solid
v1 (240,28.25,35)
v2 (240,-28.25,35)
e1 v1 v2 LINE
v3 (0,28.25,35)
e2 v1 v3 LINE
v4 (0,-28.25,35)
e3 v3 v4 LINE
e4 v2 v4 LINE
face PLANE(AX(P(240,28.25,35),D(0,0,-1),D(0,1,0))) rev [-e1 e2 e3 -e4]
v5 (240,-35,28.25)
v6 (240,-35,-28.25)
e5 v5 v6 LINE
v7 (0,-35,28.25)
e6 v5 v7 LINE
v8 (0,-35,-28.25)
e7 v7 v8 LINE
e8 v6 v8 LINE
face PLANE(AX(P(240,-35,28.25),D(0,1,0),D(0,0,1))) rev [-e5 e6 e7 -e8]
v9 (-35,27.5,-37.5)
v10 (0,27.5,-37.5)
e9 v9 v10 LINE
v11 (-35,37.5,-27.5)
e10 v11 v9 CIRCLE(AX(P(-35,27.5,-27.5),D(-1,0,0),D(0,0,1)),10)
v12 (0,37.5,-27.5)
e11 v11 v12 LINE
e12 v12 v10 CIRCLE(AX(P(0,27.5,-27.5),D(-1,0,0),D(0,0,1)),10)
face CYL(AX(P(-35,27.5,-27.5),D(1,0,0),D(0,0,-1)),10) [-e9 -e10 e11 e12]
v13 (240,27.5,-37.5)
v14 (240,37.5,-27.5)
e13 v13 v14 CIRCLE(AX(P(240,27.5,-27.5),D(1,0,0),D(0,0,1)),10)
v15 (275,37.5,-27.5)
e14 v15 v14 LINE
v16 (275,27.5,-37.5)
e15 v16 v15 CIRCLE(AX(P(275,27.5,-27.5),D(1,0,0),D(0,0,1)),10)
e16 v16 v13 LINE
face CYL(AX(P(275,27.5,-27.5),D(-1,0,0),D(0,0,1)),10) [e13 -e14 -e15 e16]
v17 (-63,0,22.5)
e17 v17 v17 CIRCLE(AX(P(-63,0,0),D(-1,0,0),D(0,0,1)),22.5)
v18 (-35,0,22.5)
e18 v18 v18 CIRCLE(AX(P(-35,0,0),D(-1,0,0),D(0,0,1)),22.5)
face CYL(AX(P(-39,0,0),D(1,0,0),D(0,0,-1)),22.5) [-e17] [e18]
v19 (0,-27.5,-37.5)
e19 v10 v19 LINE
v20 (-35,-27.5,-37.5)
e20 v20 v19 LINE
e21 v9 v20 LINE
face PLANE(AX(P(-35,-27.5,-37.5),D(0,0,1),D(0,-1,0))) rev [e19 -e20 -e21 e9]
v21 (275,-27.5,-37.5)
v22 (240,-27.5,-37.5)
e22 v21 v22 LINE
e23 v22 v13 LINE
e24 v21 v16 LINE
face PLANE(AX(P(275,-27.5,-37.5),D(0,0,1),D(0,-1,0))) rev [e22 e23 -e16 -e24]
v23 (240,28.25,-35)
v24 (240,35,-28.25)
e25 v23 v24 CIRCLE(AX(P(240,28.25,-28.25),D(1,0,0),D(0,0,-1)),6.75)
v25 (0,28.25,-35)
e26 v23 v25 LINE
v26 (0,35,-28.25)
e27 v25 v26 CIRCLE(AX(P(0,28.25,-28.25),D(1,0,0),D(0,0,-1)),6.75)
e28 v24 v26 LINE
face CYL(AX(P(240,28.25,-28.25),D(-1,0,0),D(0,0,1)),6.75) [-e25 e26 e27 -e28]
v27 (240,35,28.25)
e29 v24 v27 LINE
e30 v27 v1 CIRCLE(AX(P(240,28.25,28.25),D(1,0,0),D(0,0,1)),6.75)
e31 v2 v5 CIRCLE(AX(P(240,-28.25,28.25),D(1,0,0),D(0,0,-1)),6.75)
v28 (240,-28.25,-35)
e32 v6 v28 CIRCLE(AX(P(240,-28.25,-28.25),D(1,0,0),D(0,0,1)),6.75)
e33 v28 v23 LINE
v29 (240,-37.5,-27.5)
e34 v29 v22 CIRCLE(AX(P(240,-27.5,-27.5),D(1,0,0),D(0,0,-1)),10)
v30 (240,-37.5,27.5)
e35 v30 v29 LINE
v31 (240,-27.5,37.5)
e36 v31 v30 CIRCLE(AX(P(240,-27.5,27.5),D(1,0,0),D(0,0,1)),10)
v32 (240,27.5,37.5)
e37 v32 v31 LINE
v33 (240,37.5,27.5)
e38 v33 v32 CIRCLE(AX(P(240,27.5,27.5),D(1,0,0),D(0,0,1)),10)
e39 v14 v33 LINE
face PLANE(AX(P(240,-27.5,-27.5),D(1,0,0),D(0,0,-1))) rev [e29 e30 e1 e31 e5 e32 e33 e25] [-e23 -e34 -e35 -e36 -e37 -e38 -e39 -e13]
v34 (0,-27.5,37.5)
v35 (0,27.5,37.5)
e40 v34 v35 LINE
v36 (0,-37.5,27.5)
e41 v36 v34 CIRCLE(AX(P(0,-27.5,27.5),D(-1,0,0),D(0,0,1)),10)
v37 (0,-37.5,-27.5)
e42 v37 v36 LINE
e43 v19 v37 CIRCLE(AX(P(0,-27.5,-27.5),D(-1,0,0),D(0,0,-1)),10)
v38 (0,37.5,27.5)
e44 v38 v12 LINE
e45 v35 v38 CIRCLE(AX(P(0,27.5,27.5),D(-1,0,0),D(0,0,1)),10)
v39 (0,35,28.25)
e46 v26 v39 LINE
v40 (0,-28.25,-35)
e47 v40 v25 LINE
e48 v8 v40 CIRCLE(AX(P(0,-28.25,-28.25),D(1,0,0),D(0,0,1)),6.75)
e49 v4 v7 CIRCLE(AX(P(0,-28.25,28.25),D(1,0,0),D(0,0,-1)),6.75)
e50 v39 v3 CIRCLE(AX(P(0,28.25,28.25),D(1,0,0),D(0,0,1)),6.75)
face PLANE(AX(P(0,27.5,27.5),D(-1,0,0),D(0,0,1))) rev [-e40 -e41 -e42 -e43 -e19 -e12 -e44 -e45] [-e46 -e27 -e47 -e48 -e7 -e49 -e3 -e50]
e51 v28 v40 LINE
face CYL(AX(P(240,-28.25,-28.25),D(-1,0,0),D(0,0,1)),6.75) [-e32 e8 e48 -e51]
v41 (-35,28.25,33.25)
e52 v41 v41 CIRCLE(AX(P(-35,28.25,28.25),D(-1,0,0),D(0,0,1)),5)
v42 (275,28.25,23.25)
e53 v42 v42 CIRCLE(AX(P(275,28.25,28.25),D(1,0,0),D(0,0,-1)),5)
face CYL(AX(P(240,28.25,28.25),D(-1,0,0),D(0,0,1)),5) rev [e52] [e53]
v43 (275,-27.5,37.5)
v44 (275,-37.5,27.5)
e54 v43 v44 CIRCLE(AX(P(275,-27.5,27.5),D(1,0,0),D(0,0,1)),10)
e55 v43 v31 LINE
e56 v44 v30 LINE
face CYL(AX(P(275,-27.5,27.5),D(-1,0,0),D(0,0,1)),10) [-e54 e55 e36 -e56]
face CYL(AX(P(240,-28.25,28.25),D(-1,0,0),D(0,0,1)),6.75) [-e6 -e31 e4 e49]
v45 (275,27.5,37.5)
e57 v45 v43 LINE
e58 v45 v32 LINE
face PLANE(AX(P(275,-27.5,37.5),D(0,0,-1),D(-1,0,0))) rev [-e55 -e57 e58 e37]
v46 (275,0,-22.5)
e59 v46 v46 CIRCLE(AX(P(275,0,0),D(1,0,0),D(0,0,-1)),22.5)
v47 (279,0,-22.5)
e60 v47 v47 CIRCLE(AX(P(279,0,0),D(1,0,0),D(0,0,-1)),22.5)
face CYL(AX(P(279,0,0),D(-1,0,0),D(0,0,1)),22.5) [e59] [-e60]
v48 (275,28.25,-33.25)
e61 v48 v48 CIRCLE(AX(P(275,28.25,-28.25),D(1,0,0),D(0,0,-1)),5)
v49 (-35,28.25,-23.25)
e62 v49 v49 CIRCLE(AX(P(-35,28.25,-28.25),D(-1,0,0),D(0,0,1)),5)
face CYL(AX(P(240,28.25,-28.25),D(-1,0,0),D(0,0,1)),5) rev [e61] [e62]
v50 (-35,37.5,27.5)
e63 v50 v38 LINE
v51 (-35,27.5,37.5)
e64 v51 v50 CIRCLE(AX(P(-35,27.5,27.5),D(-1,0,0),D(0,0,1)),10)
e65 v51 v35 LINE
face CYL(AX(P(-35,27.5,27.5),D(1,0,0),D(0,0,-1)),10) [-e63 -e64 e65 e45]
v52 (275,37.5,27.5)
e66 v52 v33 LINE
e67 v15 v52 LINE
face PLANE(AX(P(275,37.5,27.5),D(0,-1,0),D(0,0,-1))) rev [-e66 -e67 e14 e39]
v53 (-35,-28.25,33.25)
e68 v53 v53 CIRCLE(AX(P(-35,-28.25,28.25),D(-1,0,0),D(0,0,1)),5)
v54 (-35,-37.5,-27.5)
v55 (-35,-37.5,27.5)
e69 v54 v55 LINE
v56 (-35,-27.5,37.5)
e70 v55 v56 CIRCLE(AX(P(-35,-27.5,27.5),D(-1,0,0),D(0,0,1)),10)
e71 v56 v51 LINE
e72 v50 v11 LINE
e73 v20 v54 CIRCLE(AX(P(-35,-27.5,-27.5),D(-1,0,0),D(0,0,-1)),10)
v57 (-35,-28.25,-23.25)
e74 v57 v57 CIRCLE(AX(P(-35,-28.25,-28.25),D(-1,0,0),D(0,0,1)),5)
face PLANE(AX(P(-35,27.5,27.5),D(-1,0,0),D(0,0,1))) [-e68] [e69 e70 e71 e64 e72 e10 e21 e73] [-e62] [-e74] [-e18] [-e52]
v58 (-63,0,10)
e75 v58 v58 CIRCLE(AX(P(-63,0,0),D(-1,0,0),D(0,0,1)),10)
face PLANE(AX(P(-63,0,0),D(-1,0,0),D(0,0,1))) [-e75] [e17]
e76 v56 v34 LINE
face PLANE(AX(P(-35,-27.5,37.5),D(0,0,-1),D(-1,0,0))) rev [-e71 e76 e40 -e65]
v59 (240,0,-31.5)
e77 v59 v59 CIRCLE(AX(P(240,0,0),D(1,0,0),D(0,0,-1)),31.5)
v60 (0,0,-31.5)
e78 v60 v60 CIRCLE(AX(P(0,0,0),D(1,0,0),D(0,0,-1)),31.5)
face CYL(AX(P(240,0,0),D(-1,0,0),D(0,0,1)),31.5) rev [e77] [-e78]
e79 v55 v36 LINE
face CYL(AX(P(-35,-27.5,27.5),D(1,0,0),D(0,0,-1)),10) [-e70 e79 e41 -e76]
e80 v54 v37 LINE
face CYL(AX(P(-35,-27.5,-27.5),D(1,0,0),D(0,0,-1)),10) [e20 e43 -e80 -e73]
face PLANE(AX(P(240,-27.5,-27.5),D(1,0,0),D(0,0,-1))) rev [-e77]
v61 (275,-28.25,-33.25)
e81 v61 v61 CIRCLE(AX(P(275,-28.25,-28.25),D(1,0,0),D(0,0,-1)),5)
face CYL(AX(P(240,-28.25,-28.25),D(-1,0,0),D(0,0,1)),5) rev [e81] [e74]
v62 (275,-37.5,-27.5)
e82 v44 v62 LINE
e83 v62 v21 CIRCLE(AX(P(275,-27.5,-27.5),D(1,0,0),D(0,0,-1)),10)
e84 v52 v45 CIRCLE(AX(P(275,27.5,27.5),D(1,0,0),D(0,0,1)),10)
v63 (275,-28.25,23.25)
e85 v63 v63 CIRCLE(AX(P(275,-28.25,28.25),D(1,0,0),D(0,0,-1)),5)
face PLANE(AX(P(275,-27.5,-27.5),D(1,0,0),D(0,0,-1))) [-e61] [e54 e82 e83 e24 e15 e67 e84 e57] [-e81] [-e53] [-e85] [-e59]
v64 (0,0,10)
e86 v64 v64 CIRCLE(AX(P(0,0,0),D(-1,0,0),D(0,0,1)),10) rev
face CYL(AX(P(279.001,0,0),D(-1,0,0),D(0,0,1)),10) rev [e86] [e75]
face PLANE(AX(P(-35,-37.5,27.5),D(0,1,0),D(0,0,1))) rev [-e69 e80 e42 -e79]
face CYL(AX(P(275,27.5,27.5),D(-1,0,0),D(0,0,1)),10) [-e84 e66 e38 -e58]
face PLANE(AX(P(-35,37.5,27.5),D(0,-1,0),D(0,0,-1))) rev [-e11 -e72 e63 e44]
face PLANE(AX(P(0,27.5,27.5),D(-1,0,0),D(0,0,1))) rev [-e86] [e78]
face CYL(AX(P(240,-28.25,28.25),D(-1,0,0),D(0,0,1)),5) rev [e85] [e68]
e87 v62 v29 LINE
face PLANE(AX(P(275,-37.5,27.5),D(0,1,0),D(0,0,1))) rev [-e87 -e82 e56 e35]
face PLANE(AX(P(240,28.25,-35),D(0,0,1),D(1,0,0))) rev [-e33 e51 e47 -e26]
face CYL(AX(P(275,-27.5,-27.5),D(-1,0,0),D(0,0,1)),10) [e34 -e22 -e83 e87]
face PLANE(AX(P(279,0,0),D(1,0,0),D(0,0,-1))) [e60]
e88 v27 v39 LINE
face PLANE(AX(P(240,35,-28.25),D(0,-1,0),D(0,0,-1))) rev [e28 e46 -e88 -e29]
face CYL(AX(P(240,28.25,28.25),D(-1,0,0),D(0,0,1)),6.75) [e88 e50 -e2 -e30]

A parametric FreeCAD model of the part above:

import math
import FreeCAD as App
import Part
import Sketcher

V = App.Vector

doc = App.newDocument("Part")
params = doc.addObject("Spreadsheet::Sheet", "Params")
for row, (alias, value) in enumerate([
    ("sketch1_diameter", "10 mm"),
    ("sketch1_diameter2", "63 mm"),
    ("sketch1_radius", "6.75 mm"),
    ("sketch1_width", "56.5 mm"),
    ("pad1_length", "240 mm"),
    ("sketch2_diameter", "10 mm"),
    ("sketch2_radius", "10 mm"),
    ("sketch2_width", "55 mm"),
    ("pad2_length", "35 mm"),
    ("sketch3_diameter", "45 mm"),
    ("pad3_length", "4 mm"),
    ("sketch4_diameter", "10 mm"),
    ("sketch4_radius", "10 mm"),
    ("sketch4_width", "55 mm"),
    ("pad4_length", "35 mm"),
    ("sketch5_diameter", "45 mm"),
    ("pad5_length", "4 mm"),
    ("sketch6_diameter", "45 mm"),
    ("pad6_length", "24 mm"),
    ("sketch7_diameter", "20 mm"),
], start=1):
    params.set(f"A{row}", alias)
    params.set(f"B{row}", "=" + value)
    params.setAlias(f"B{row}", alias)

body = doc.addObject("PartDesign::Body", "Body")

# Sketch on YZ plane
sketch1 = body.newObject("Sketcher::SketchObject", "Sketch")
sketch1.AttachmentSupport = (doc.getObject("YZ_Plane"), [""])
sketch1.MapMode = "FlatFace"
sketch1.addGeometry([
    Part.LineSegment(V(-28.25, -35, 0), V(28.25, -35, 0)),  # 0
    Part.ArcOfCircle(Part.Circle(V(28.25, -28.25, 0), V(0, 0, 1), 6.75), math.radians(-90), math.radians(0)),  # 1
    Part.LineSegment(V(35, -28.25, 0), V(35, 28.25, 0)),  # 2
    Part.ArcOfCircle(Part.Circle(V(28.25, 28.25, 0), V(0, 0, 1), 6.75), math.radians(0), math.radians(90)),  # 3
    Part.LineSegment(V(28.25, 35, 0), V(-28.25, 35, 0)),  # 4
    Part.ArcOfCircle(Part.Circle(V(-28.25, 28.25, 0), V(0, 0, 1), 6.75), math.radians(90), math.radians(180)),  # 5
    Part.LineSegment(V(-35, 28.25, 0), V(-35, -28.25, 0)),  # 6
    Part.ArcOfCircle(Part.Circle(V(-28.25, -28.25, 0), V(0, 0, 1), 6.75), math.radians(180), math.radians(270)),  # 7
    Part.Circle(V(-28.25, -28.25, 0), V(0, 0, 1), 5),  # 8
    Part.Circle(V(-28.25, 28.25, 0), V(0, 0, 1), 5),  # 9
    Part.Circle(V(28.25, -28.25, 0), V(0, 0, 1), 5),  # 10
    Part.Circle(V(0, 0, 0), V(0, 0, 1), 31.5),  # 11
    Part.Circle(V(28.25, 28.25, 0), V(0, 0, 1), 5),  # 12
], False)
sketch1.addConstraint([
    Sketcher.Constraint("Tangent", 0, 2, 1, 1),
    Sketcher.Constraint("Tangent", 1, 2, 2, 1),
    Sketcher.Constraint("Tangent", 2, 2, 3, 1),
    Sketcher.Constraint("Tangent", 3, 2, 4, 1),
    Sketcher.Constraint("Tangent", 4, 2, 5, 1),
    Sketcher.Constraint("Tangent", 5, 2, 6, 1),
    Sketcher.Constraint("Tangent", 6, 2, 7, 1),
    Sketcher.Constraint("Tangent", 7, 2, 0, 1),
    Sketcher.Constraint("Horizontal", 0),
    Sketcher.Constraint("Vertical", 2),
    Sketcher.Constraint("Horizontal", 4),
    Sketcher.Constraint("Vertical", 6),
    Sketcher.Constraint("Coincident", 11, 3, -1, 1),
    Sketcher.Constraint("Coincident", 8, 3, 7, 3),
    Sketcher.Constraint("Coincident", 9, 3, 5, 3),
    Sketcher.Constraint("Coincident", 10, 3, 1, 3),
    Sketcher.Constraint("Coincident", 12, 3, 3, 3),
    Sketcher.Constraint("Equal", 1, 3),
    Sketcher.Constraint("Equal", 3, 5),
    Sketcher.Constraint("Equal", 5, 7),
    Sketcher.Constraint("Equal", 8, 9),
    Sketcher.Constraint("Equal", 9, 10),
    Sketcher.Constraint("Equal", 10, 12),
    Sketcher.Constraint("Symmetric", 1, 3, 5, 3, -1, 1),
    Sketcher.Constraint("Equal", 4, 2),
    Sketcher.Constraint("Diameter", 8, 10.0),
    Sketcher.Constraint("Diameter", 11, 63.0),
    Sketcher.Constraint("Radius", 1, 6.75),
    Sketcher.Constraint("DistanceX", 0, 1, 0, 2, 56.5),
])
sketch1.setExpression("Constraints[25]", "Params.sketch1_diameter")
sketch1.setExpression("Constraints[26]", "Params.sketch1_diameter2")
sketch1.setExpression("Constraints[27]", "Params.sketch1_radius")
sketch1.setExpression("Constraints[28]", "Params.sketch1_width")
pad1 = body.newObject("PartDesign::Pad", "Pad")
pad1.Profile = sketch1
pad1.setExpression("Length", "Params.pad1_length")

# Sketch on YZ plane
sketch2 = body.newObject("Sketcher::SketchObject", "Sketch001")
sketch2.AttachmentSupport = (doc.getObject("YZ_Plane"), [""])
sketch2.MapMode = "FlatFace"
sketch2.AttachmentOffset = App.Placement(V(0, 0, 240), App.Rotation())
sketch2.addGeometry([
    Part.LineSegment(V(-37.5, 27.5, 0), V(-37.5, -27.5, 0)),  # 0
    Part.ArcOfCircle(Part.Circle(V(-27.5, -27.5, 0), V(0, 0, 1), 10), math.radians(180), math.radians(270)),  # 1
    Part.LineSegment(V(-27.5, -37.5, 0), V(27.5, -37.5, 0)),  # 2
    Part.ArcOfCircle(Part.Circle(V(27.5, -27.5, 0), V(0, 0, 1), 10), math.radians(-90), math.radians(0)),  # 3
    Part.LineSegment(V(37.5, -27.5, 0), V(37.5, 27.5, 0)),  # 4
    Part.ArcOfCircle(Part.Circle(V(27.5, 27.5, 0), V(0, 0, 1), 10), math.radians(0), math.radians(90)),  # 5
    Part.LineSegment(V(27.5, 37.5, 0), V(-27.5, 37.5, 0)),  # 6
    Part.ArcOfCircle(Part.Circle(V(-27.5, 27.5, 0), V(0, 0, 1), 10), math.radians(90), math.radians(180)),  # 7
    Part.Circle(V(-28.25, 28.25, 0), V(0, 0, 1), 5),  # 8
    Part.Circle(V(-28.25, -28.25, 0), V(0, 0, 1), 5),  # 9
    Part.Circle(V(28.25, 28.25, 0), V(0, 0, 1), 5),  # 10
    Part.Circle(V(28.25, -28.25, 0), V(0, 0, 1), 5),  # 11
], False)
sketch2.addConstraint([
    Sketcher.Constraint("Tangent", 0, 2, 1, 1),
    Sketcher.Constraint("Tangent", 1, 2, 2, 1),
    Sketcher.Constraint("Tangent", 2, 2, 3, 1),
    Sketcher.Constraint("Tangent", 3, 2, 4, 1),
    Sketcher.Constraint("Tangent", 4, 2, 5, 1),
    Sketcher.Constraint("Tangent", 5, 2, 6, 1),
    Sketcher.Constraint("Tangent", 6, 2, 7, 1),
    Sketcher.Constraint("Tangent", 7, 2, 0, 1),
    Sketcher.Constraint("Vertical", 0),
    Sketcher.Constraint("Horizontal", 2),
    Sketcher.Constraint("Vertical", 4),
    Sketcher.Constraint("Horizontal", 6),
    Sketcher.Constraint("Equal", 1, 3),
    Sketcher.Constraint("Equal", 3, 5),
    Sketcher.Constraint("Equal", 5, 7),
    Sketcher.Constraint("Equal", 8, 9),
    Sketcher.Constraint("Equal", 9, 10),
    Sketcher.Constraint("Equal", 10, 11),
    Sketcher.Constraint("Symmetric", 1, 3, 5, 3, -1, 1),
    Sketcher.Constraint("Symmetric", 9, 3, 10, 3, -1, 1),
    Sketcher.Constraint("Symmetric", 8, 3, 11, 3, -1, 1),
    Sketcher.Constraint("Symmetric", 8, 3, 10, 3, -2),
    Sketcher.Constraint("Equal", 6, 0),
    Sketcher.Constraint("Diameter", 8, 10.0),
    Sketcher.Constraint("Radius", 1, 10.0),
    Sketcher.Constraint("DistanceX", 2, 1, 2, 2, 55.0),
    Sketcher.Constraint("DistanceY", 9, 3, 8, 3, 56.5),
    Sketcher.Constraint("DistanceX", 8, 3, 10, 3, 56.5),
])
sketch2.setExpression("Constraints[23]", "Params.sketch2_diameter")
sketch2.setExpression("Constraints[24]", "Params.sketch2_radius")
sketch2.setExpression("Constraints[25]", "Params.sketch2_width")
pad2 = body.newObject("PartDesign::Pad", "Pad001")
pad2.Profile = sketch2
pad2.setExpression("Length", "Params.pad2_length")

# Sketch on YZ plane
sketch3 = body.newObject("Sketcher::SketchObject", "Sketch002")
sketch3.AttachmentSupport = (doc.getObject("YZ_Plane"), [""])
sketch3.MapMode = "FlatFace"
sketch3.AttachmentOffset = App.Placement(V(0, 0, 275), App.Rotation())
sketch3.addGeometry(Part.Circle(V(0, 0, 0), V(0, 0, 1), 22.5), False)
sketch3.addConstraint([
    Sketcher.Constraint("Coincident", 0, 3, -1, 1),
    Sketcher.Constraint("Diameter", 0, 45.0),
])
sketch3.setExpression("Constraints[1]", "Params.sketch3_diameter")
pad3 = body.newObject("PartDesign::Pad", "Pad002")
pad3.Profile = sketch3
pad3.setExpression("Length", "Params.pad3_length")

# Sketch on YZ plane
sketch4 = body.newObject("Sketcher::SketchObject", "Sketch003")
sketch4.AttachmentSupport = (doc.getObject("YZ_Plane"), [""])
sketch4.MapMode = "FlatFace"
sketch4.AttachmentOffset = App.Placement(V(0, 0, -35), App.Rotation())
sketch4.addGeometry([
    Part.LineSegment(V(-37.5, -27.5, 0), V(-37.5, 27.5, 0)),  # 0
    Part.ArcOfCircle(Part.Circle(V(-27.5, 27.5, 0), V(0, 0, 1), 10), math.radians(90), math.radians(180)),  # 1
    Part.LineSegment(V(-27.5, 37.5, 0), V(27.5, 37.5, 0)),  # 2
    Part.ArcOfCircle(Part.Circle(V(27.5, 27.5, 0), V(0, 0, 1), 10), math.radians(0), math.radians(90)),  # 3
    Part.LineSegment(V(37.5, 27.5, 0), V(37.5, -27.5, 0)),  # 4
    Part.ArcOfCircle(Part.Circle(V(27.5, -27.5, 0), V(0, 0, 1), 10), math.radians(-90), math.radians(0)),  # 5
    Part.LineSegment(V(27.5, -37.5, 0), V(-27.5, -37.5, 0)),  # 6
    Part.ArcOfCircle(Part.Circle(V(-27.5, -27.5, 0), V(0, 0, 1), 10), math.radians(180), math.radians(270)),  # 7
    Part.Circle(V(-28.25, 28.25, 0), V(0, 0, 1), 5),  # 8
    Part.Circle(V(-28.25, -28.25, 0), V(0, 0, 1), 5),  # 9
    Part.Circle(V(28.25, 28.25, 0), V(0, 0, 1), 5),  # 10
    Part.Circle(V(28.25, -28.25, 0), V(0, 0, 1), 5),  # 11
], False)
sketch4.addConstraint([
    Sketcher.Constraint("Tangent", 0, 2, 1, 2),
    Sketcher.Constraint("Tangent", 1, 1, 2, 1),
    Sketcher.Constraint("Tangent", 2, 2, 3, 2),
    Sketcher.Constraint("Tangent", 3, 1, 4, 1),
    Sketcher.Constraint("Tangent", 4, 2, 5, 2),
    Sketcher.Constraint("Tangent", 5, 1, 6, 1),
    Sketcher.Constraint("Tangent", 6, 2, 7, 2),
    Sketcher.Constraint("Tangent", 7, 1, 0, 1),
    Sketcher.Constraint("Vertical", 0),
    Sketcher.Constraint("Horizontal", 2),
    Sketcher.Constraint("Vertical", 4),
    Sketcher.Constraint("Horizontal", 6),
    Sketcher.Constraint("Equal", 1, 3),
    Sketcher.Constraint("Equal", 3, 5),
    Sketcher.Constraint("Equal", 5, 7),
    Sketcher.Constraint("Equal", 8, 9),
    Sketcher.Constraint("Equal", 9, 10),
    Sketcher.Constraint("Equal", 10, 11),
    Sketcher.Constraint("Symmetric", 1, 3, 5, 3, -1, 1),
    Sketcher.Constraint("Symmetric", 9, 3, 10, 3, -1, 1),
    Sketcher.Constraint("Symmetric", 8, 3, 11, 3, -1, 1),
    Sketcher.Constraint("Symmetric", 8, 3, 10, 3, -2),
    Sketcher.Constraint("Equal", 6, 0),
    Sketcher.Constraint("Diameter", 8, 10.0),
    Sketcher.Constraint("Radius", 1, 10.0),
    Sketcher.Constraint("DistanceX", 2, 1, 2, 2, 55.0),
    Sketcher.Constraint("DistanceY", 9, 3, 8, 3, 56.5),
    Sketcher.Constraint("DistanceX", 8, 3, 10, 3, 56.5),
])
sketch4.setExpression("Constraints[23]", "Params.sketch4_diameter")
sketch4.setExpression("Constraints[24]", "Params.sketch4_radius")
sketch4.setExpression("Constraints[25]", "Params.sketch4_width")
pad4 = body.newObject("PartDesign::Pad", "Pad003")
pad4.Profile = sketch4
pad4.setExpression("Length", "Params.pad4_length")

# Sketch on YZ plane
sketch5 = body.newObject("Sketcher::SketchObject", "Sketch004")
sketch5.AttachmentSupport = (doc.getObject("YZ_Plane"), [""])
sketch5.MapMode = "FlatFace"
sketch5.AttachmentOffset = App.Placement(V(0, 0, -39), App.Rotation())
sketch5.addGeometry(Part.Circle(V(0, 0, 0), V(0, 0, 1), 22.5), False)
sketch5.addConstraint([
    Sketcher.Constraint("Coincident", 0, 3, -1, 1),
    Sketcher.Constraint("Diameter", 0, 45.0),
])
sketch5.setExpression("Constraints[1]", "Params.sketch5_diameter")
pad5 = body.newObject("PartDesign::Pad", "Pad004")
pad5.Profile = sketch5
pad5.setExpression("Length", "Params.pad5_length")

# Sketch on YZ plane
sketch6 = body.newObject("Sketcher::SketchObject", "Sketch005")
sketch6.AttachmentSupport = (doc.getObject("YZ_Plane"), [""])
sketch6.MapMode = "FlatFace"
sketch6.AttachmentOffset = App.Placement(V(0, 0, -63), App.Rotation())
sketch6.addGeometry(Part.Circle(V(0, 0, 0), V(0, 0, 1), 22.5), False)
sketch6.addConstraint([
    Sketcher.Constraint("Coincident", 0, 3, -1, 1),
    Sketcher.Constraint("Diameter", 0, 45.0),
])
sketch6.setExpression("Constraints[1]", "Params.sketch6_diameter")
pad6 = body.newObject("PartDesign::Pad", "Pad005")
pad6.Profile = sketch6
pad6.setExpression("Length", "Params.pad6_length")

# Sketch on YZ plane
sketch7 = body.newObject("Sketcher::SketchObject", "Sketch006")
sketch7.AttachmentSupport = (doc.getObject("YZ_Plane"), [""])
sketch7.MapMode = "FlatFace"
sketch7.AttachmentOffset = App.Placement(V(0, 0, -63), App.Rotation())
sketch7.addGeometry(Part.Circle(V(0, 0, 0), V(0, 0, 1), 10), False)
sketch7.addConstraint([
    Sketcher.Constraint("Coincident", 0, 3, -1, 1),
    Sketcher.Constraint("Diameter", 0, 20.0),
])
sketch7.setExpression("Constraints[1]", "Params.sketch7_diameter")
pocket1 = body.newObject("PartDesign::Pocket", "Pocket")
pocket1.Profile = sketch7
pocket1.Type = "UpToFirst"
pocket1.Reversed = True

doc.recompute()
